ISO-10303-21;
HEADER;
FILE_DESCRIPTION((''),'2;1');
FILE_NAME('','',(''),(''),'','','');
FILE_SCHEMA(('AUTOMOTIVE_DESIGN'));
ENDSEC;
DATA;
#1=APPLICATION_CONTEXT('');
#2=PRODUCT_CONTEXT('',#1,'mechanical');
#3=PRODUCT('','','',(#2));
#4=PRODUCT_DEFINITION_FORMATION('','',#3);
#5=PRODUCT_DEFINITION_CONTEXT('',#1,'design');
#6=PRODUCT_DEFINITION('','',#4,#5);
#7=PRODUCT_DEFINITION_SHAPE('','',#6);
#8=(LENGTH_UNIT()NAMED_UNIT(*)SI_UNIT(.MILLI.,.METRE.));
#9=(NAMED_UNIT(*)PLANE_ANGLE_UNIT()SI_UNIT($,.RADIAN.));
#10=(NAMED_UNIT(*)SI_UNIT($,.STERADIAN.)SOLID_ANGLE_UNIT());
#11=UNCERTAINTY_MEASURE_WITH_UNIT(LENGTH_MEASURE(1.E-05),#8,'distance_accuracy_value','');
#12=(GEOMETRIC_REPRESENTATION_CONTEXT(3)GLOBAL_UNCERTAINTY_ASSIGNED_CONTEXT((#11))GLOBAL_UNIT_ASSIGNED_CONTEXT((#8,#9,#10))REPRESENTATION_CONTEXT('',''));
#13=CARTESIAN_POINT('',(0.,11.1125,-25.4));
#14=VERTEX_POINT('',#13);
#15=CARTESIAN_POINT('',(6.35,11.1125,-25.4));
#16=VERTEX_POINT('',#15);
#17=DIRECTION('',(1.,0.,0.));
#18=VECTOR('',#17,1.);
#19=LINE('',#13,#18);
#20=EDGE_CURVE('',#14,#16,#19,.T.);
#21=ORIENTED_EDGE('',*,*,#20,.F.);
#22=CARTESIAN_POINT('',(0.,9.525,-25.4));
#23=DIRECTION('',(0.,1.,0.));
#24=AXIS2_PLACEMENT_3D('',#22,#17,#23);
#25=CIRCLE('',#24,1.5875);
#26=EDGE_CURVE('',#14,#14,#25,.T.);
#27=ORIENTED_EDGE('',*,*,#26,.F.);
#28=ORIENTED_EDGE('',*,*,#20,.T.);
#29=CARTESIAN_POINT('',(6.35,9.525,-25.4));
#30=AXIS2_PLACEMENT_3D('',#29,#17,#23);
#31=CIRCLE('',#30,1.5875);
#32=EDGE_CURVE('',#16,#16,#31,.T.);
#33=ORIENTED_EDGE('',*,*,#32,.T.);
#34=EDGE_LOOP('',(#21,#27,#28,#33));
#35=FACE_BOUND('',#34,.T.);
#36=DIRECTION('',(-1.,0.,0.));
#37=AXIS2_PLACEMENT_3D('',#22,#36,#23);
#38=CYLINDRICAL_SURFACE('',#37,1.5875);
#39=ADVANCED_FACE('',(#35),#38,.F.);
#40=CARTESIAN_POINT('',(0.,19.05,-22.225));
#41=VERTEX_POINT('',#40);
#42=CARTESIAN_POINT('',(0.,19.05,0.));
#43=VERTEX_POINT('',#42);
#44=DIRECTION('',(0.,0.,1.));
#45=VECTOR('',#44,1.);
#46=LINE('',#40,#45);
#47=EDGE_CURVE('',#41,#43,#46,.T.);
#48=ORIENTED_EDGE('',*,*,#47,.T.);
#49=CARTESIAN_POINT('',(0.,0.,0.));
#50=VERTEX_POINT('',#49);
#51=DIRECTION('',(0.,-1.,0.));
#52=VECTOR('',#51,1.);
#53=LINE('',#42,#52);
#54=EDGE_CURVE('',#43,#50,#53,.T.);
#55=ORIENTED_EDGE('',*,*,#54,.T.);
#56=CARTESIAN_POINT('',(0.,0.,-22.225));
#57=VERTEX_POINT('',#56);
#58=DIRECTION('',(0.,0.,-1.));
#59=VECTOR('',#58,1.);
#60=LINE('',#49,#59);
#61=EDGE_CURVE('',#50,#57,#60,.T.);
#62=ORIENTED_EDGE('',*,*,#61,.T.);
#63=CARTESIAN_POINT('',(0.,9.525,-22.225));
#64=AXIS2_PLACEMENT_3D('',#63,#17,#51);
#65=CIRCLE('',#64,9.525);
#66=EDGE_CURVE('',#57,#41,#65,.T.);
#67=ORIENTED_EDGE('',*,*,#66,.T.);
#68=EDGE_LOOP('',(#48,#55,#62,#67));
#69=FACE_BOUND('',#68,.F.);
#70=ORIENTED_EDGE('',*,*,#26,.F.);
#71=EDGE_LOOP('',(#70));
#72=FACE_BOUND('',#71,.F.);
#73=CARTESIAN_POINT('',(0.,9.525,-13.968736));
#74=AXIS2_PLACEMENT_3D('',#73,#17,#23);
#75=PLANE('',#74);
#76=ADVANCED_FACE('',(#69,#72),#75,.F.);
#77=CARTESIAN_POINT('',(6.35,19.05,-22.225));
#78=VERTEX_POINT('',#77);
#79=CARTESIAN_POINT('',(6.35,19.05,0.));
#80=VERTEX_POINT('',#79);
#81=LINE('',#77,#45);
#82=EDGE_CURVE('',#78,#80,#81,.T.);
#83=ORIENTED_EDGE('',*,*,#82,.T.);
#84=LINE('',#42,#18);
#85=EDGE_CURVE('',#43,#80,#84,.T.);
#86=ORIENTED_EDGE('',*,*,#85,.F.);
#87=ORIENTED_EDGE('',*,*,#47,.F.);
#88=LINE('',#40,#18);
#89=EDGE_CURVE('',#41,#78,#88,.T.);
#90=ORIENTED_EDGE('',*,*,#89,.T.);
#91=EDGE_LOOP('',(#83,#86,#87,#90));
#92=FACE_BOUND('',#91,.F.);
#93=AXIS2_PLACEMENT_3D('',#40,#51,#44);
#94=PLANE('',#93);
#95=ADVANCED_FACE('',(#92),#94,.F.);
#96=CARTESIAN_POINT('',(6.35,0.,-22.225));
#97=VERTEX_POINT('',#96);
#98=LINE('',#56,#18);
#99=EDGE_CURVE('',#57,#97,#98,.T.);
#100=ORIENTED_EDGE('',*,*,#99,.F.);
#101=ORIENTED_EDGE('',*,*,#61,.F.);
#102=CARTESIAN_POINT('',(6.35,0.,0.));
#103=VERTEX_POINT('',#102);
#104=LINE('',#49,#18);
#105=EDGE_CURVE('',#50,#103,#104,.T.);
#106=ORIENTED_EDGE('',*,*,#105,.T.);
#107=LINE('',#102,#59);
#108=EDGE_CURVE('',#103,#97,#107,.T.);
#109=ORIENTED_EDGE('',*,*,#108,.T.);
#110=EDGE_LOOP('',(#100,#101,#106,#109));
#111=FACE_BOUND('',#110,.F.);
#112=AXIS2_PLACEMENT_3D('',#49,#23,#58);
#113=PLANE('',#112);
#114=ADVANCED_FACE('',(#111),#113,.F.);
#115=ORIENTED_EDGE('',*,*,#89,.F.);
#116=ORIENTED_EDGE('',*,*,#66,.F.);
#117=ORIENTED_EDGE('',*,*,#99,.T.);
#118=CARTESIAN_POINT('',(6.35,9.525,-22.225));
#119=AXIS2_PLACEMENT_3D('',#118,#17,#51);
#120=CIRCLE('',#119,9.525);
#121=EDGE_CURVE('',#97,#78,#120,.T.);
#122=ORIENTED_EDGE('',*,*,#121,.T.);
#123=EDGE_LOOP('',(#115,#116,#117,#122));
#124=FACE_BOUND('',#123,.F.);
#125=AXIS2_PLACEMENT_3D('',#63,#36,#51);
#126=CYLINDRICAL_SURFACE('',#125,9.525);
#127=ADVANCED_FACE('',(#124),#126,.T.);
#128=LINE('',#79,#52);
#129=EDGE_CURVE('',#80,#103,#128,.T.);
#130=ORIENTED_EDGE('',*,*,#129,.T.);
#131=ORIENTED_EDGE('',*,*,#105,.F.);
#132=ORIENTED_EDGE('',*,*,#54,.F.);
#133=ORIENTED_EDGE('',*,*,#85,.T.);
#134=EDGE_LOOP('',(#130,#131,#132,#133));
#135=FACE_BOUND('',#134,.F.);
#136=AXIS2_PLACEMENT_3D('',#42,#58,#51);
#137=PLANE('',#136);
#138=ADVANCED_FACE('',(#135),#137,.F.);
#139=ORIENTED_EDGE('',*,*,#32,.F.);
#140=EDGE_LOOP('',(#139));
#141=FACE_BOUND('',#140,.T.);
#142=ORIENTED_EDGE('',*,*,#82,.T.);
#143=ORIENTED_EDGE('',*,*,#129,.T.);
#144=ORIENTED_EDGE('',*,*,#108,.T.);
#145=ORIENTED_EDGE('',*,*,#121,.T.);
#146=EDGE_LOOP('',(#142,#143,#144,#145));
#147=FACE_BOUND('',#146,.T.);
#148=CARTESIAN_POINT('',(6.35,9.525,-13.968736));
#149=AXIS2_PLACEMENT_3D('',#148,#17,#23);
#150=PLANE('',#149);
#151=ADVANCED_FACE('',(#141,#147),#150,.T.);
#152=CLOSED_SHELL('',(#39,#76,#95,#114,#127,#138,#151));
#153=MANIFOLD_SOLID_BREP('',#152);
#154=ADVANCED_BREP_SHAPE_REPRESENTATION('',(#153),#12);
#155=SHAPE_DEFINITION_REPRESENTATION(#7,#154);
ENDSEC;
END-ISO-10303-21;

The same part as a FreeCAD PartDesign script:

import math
import FreeCAD as App
import Part
import Sketcher

V = App.Vector
Q = App.Units.Quantity

doc = App.newDocument("Part")
params = doc.addObject("Spreadsheet::Sheet", "Params")
for row, (alias, value) in enumerate([
    ("sketch1_diameter", "0.125 in"),
    ("sketch1_radius", "0.375 in"),
    ("sketch1_height", "0.875 in"),
    ("pad1_length", "0.25 in"),
], start=1):
    params.set(f"A{row}", alias)
    params.set(f"B{row}", "=" + value)
    params.setAlias(f"B{row}", alias)

body = doc.addObject("PartDesign::Body", "Body")

# Sketch on YZ plane
sketch1 = doc.addObject("Sketcher::SketchObject", "Sketch")
body.addObject(sketch1)
sketch1.AttachmentSupport = (doc.YZ_Plane, [""])
sketch1.MapMode = "FlatFace"
sketch1.addGeometry(Part.LineSegment(V(0, 0, 0), V(0, -22.2, 0)), False)
sketch1.addGeometry(Part.ArcOfCircle(Part.Circle(V(9.5, -22.2, 0), V(0, 0, 1), 9.5), math.radians(180), math.radians(360)), False)
sketch1.addGeometry(Part.LineSegment(V(19.1, -22.2, 0), V(19.1, 0, 0)), False)
sketch1.addGeometry(Part.LineSegment(V(19.1, 0, 0), V(0, 0, 0)), False)
sketch1.addGeometry(Part.Circle(V(9.5, -25.4, 0), V(0, 0, 1), 1.6), False)
sketch1.addConstraint(Sketcher.Constraint("Tangent", 0, 2, 1, 1))
sketch1.addConstraint(Sketcher.Constraint("Tangent", 1, 2, 2, 1))
sketch1.addConstraint(Sketcher.Constraint("Coincident", 2, 2, 3, 1))
sketch1.addConstraint(Sketcher.Constraint("Coincident", 3, 2, 0, 1))
sketch1.addConstraint(Sketcher.Constraint("Vertical", 0))
sketch1.addConstraint(Sketcher.Constraint("Vertical", 2))
sketch1.addConstraint(Sketcher.Constraint("Horizontal", 3))
sketch1.addConstraint(Sketcher.Constraint("Coincident", 3, 2, -1, 1))
sketch1.addConstraint(Sketcher.Constraint("Vertical", 1, 3, 4, 3))
sketch1.addConstraint(Sketcher.Constraint("Diameter", 4, Q("0.125 in")))
sketch1.addConstraint(Sketcher.Constraint("DistanceY", 4, 3, -1, 1, Q("1 in")))
sketch1.addConstraint(Sketcher.Constraint("Radius", 1, Q("0.375 in")))
sketch1.addConstraint(Sketcher.Constraint("DistanceY", 0, 2, 0, 1, Q("0.875 in")))
sketch1.setExpression("Constraints[9]", "Params.sketch1_diameter")
sketch1.setExpression("Constraints[11]", "Params.sketch1_radius")
sketch1.setExpression("Constraints[12]", "Params.sketch1_height")
pad1 = doc.addObject("PartDesign::Pad", "Pad")
body.addObject(pad1)
pad1.Profile = sketch1
pad1.setExpression("Length", "Params.pad1_length")

doc.recompute()
